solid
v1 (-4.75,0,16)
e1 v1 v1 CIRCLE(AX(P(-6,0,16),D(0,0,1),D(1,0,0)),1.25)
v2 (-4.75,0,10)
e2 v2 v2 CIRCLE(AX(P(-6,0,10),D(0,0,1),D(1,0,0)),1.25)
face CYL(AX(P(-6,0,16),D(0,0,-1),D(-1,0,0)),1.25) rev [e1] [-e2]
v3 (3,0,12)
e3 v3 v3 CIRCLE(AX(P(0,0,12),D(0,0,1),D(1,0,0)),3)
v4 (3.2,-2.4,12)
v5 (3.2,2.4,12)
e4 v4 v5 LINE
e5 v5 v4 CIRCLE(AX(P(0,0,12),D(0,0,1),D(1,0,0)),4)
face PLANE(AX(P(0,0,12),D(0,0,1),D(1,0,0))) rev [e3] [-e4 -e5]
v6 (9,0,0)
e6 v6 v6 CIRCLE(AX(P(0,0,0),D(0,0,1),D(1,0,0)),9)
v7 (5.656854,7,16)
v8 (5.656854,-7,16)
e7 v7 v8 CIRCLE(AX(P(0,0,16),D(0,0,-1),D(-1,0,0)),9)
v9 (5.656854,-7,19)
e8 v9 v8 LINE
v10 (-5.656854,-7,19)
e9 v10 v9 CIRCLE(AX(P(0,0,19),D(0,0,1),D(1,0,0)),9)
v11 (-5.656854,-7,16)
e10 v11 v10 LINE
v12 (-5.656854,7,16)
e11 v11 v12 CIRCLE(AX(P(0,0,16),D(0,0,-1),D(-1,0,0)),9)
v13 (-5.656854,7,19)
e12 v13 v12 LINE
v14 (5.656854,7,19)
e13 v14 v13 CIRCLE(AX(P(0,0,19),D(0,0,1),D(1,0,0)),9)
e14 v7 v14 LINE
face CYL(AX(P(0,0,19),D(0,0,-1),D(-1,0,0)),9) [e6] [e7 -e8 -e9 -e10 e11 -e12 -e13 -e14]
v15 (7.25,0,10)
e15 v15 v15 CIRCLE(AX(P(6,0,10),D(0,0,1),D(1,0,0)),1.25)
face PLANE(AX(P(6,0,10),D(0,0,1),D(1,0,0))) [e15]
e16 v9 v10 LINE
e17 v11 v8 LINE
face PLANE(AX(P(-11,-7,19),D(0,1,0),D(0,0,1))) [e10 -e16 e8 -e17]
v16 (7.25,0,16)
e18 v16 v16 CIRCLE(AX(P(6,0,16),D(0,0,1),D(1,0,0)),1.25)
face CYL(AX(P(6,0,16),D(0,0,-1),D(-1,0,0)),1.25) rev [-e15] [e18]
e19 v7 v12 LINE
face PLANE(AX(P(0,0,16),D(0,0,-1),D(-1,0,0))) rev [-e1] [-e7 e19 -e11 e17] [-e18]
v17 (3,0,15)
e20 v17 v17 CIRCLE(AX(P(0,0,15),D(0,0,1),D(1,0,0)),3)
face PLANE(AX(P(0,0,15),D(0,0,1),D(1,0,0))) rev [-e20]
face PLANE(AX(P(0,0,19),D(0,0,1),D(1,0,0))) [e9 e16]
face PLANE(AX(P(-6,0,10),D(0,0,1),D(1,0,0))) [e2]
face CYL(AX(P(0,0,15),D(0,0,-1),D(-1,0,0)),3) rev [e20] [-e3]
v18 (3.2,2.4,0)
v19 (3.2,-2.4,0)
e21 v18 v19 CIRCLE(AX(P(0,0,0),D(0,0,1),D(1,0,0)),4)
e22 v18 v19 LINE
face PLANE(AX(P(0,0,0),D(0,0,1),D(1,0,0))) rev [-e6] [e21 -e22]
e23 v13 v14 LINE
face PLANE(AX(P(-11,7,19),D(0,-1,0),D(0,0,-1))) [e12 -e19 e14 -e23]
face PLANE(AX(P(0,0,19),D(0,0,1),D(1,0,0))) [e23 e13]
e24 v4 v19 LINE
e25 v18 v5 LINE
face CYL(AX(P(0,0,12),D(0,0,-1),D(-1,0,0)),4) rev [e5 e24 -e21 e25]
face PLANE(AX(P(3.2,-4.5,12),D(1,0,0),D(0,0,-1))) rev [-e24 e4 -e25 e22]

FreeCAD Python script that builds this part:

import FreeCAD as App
import Part
import Sketcher

V = App.Vector
Q = App.Units.Quantity


def add_polygon(sketch, points):
    """Adds a closed chain of lines whose ends are joined by coincident constraints."""
    first, n = sketch.GeometryCount, len(points)
    for a, b in zip(points, points[1:] + points[:1]):
        sketch.addGeometry(Part.LineSegment(App.Vector(*a, 0), App.Vector(*b, 0)), False)
    for i in range(n):
        sketch.addConstraint(Sketcher.Constraint("Coincident", first + i, 2, first + (i + 1) % n, 1))

doc = App.newDocument("Part")
body = doc.addObject("PartDesign::Body", "Body")

sketch1 = body.newObject("Sketcher::SketchObject", "Sketch")
sketch1.AttachmentSupport = (doc.getObject("XY_Plane"), [""])
sketch1.MapMode = "FlatFace"
sketch1.addGeometry(Part.Circle(V(0, 0, 0), V(0, 0, 1), 9), False)
sketch1.addConstraint([
    Sketcher.Constraint("Coincident", 0, 3, -1, 1),
    Sketcher.Constraint("Diameter", 0, Q("18 mm")),
])
pad1 = body.newObject("PartDesign::Pad", "Pad")
pad1.Profile = sketch1
pad1.Length = 19

sketch2 = body.newObject("Sketcher::SketchObject", "Sketch001")
sketch2.AttachmentSupport = (doc.getObject("XY_Plane"), [""])
sketch2.MapMode = "FlatFace"
sketch2.addGeometry(Part.Circle(V(0, 0, 0), V(0, 0, 1), 4), False)
sketch2.addConstraint([
    Sketcher.Constraint("Coincident", 0, 3, -1, 1),
    Sketcher.Constraint("Diameter", 0, Q("8 mm")),
])
pocket1 = body.newObject("PartDesign::Pocket", "Pocket")
pocket1.Profile = sketch2
pocket1.Length = 12
pocket1.Reversed = True

sketch3 = body.newObject("Sketcher::SketchObject", "Sketch002")
sketch3.AttachmentSupport = (doc.getObject("XY_Plane"), [""])
sketch3.MapMode = "FlatFace"
add_polygon(sketch3, [(3.2, 4.5), (3.2, -4.5), (4.7, -4.5), (4.7, 4.5)])
sketch3.addConstraint([
    Sketcher.Constraint("Vertical", 0),
    Sketcher.Constraint("Horizontal", 1),
    Sketcher.Constraint("Vertical", 2),
    Sketcher.Constraint("Horizontal", 3),
    Sketcher.Constraint("DistanceY", 0, 2, 0, 1, Q("9 mm")),
    Sketcher.Constraint("DistanceX", 1, 1, 1, 2, Q("1.5 mm")),
    Sketcher.Constraint("DistanceX", -1, 1, 0, 2, Q("3.2 mm")),
    Sketcher.Constraint("DistanceY", 0, 2, -1, 1, Q("4.5 mm")),
])
pad2 = body.newObject("PartDesign::Pad", "Pad001")
pad2.Profile = sketch3
pad2.Length = 12

sketch4 = body.newObject("Sketcher::SketchObject", "Sketch003")
sketch4.AttachmentSupport = (doc.getObject("XY_Plane"), [""])
sketch4.MapMode = "FlatFace"
sketch4.AttachmentOffset = App.Placement(V(0, 0, 12), App.Rotation())
sketch4.addGeometry(Part.Circle(V(0, 0, 0), V(0, 0, 1), 3), False)
sketch4.addConstraint([
    Sketcher.Constraint("Coincident", 0, 3, -1, 1),
    Sketcher.Constraint("Diameter", 0, Q("6 mm")),
])
pocket2 = body.newObject("PartDesign::Pocket", "Pocket001")
pocket2.Profile = sketch4
pocket2.Length = 3
pocket2.Reversed = True

sketch5 = body.newObject("Sketcher::SketchObject", "Sketch004")
sketch5.AttachmentSupport = (doc.getObject("XY_Plane"), [""])
sketch5.MapMode = "FlatFace"
sketch5.AttachmentOffset = App.Placement(V(0, 0, 16), App.Rotation())
add_polygon(sketch5, [(-11, 7), (-11, -7), (11, -7), (11, 7)])
sketch5.addConstraint([
    Sketcher.Constraint("Vertical", 0),
    Sketcher.Constraint("Horizontal", 1),
    Sketcher.Constraint("Vertical", 2),
    Sketcher.Constraint("Horizontal", 3),
    Sketcher.Constraint("Symmetric", 0, 2, 2, 2, -1, 1),
    Sketcher.Constraint("DistanceX", 1, 1, 1, 2, Q("22 mm")),
    Sketcher.Constraint("DistanceY", 0, 2, 0, 1, Q("14 mm")),
])
pocket3 = body.newObject("PartDesign::Pocket", "Pocket002")
pocket3.Profile = sketch5
pocket3.Length = 3
pocket3.Reversed = True

sketch6 = body.newObject("Sketcher::SketchObject", "Sketch005")
sketch6.AttachmentSupport = (doc.getObject("XY_Plane"), [""])
sketch6.MapMode = "FlatFace"
sketch6.AttachmentOffset = App.Placement(V(0, 0, 10), App.Rotation())
sketch6.addGeometry([
    Part.Circle(V(-6, 0, 0), V(0, 0, 1), 1.2),
    Part.Circle(V(6, 0, 0), V(0, 0, 1), 1.2),
], False)
sketch6.addConstraint([
    Sketcher.Constraint("Equal", 0, 1),
    Sketcher.Constraint("Symmetric", 0, 3, 1, 3, -1, 1),
    Sketcher.Constraint("PointOnObject", 0, 3, -1),
    Sketcher.Constraint("Diameter", 0, Q("2.5 mm")),
    Sketcher.Constraint("DistanceX", 0, 3, -1, 1, Q("6 mm")),
])
pocket4 = body.newObject("PartDesign::Pocket", "Pocket003")
pocket4.Profile = sketch6
pocket4.Length = 6
pocket4.Reversed = True

doc.recompute()
